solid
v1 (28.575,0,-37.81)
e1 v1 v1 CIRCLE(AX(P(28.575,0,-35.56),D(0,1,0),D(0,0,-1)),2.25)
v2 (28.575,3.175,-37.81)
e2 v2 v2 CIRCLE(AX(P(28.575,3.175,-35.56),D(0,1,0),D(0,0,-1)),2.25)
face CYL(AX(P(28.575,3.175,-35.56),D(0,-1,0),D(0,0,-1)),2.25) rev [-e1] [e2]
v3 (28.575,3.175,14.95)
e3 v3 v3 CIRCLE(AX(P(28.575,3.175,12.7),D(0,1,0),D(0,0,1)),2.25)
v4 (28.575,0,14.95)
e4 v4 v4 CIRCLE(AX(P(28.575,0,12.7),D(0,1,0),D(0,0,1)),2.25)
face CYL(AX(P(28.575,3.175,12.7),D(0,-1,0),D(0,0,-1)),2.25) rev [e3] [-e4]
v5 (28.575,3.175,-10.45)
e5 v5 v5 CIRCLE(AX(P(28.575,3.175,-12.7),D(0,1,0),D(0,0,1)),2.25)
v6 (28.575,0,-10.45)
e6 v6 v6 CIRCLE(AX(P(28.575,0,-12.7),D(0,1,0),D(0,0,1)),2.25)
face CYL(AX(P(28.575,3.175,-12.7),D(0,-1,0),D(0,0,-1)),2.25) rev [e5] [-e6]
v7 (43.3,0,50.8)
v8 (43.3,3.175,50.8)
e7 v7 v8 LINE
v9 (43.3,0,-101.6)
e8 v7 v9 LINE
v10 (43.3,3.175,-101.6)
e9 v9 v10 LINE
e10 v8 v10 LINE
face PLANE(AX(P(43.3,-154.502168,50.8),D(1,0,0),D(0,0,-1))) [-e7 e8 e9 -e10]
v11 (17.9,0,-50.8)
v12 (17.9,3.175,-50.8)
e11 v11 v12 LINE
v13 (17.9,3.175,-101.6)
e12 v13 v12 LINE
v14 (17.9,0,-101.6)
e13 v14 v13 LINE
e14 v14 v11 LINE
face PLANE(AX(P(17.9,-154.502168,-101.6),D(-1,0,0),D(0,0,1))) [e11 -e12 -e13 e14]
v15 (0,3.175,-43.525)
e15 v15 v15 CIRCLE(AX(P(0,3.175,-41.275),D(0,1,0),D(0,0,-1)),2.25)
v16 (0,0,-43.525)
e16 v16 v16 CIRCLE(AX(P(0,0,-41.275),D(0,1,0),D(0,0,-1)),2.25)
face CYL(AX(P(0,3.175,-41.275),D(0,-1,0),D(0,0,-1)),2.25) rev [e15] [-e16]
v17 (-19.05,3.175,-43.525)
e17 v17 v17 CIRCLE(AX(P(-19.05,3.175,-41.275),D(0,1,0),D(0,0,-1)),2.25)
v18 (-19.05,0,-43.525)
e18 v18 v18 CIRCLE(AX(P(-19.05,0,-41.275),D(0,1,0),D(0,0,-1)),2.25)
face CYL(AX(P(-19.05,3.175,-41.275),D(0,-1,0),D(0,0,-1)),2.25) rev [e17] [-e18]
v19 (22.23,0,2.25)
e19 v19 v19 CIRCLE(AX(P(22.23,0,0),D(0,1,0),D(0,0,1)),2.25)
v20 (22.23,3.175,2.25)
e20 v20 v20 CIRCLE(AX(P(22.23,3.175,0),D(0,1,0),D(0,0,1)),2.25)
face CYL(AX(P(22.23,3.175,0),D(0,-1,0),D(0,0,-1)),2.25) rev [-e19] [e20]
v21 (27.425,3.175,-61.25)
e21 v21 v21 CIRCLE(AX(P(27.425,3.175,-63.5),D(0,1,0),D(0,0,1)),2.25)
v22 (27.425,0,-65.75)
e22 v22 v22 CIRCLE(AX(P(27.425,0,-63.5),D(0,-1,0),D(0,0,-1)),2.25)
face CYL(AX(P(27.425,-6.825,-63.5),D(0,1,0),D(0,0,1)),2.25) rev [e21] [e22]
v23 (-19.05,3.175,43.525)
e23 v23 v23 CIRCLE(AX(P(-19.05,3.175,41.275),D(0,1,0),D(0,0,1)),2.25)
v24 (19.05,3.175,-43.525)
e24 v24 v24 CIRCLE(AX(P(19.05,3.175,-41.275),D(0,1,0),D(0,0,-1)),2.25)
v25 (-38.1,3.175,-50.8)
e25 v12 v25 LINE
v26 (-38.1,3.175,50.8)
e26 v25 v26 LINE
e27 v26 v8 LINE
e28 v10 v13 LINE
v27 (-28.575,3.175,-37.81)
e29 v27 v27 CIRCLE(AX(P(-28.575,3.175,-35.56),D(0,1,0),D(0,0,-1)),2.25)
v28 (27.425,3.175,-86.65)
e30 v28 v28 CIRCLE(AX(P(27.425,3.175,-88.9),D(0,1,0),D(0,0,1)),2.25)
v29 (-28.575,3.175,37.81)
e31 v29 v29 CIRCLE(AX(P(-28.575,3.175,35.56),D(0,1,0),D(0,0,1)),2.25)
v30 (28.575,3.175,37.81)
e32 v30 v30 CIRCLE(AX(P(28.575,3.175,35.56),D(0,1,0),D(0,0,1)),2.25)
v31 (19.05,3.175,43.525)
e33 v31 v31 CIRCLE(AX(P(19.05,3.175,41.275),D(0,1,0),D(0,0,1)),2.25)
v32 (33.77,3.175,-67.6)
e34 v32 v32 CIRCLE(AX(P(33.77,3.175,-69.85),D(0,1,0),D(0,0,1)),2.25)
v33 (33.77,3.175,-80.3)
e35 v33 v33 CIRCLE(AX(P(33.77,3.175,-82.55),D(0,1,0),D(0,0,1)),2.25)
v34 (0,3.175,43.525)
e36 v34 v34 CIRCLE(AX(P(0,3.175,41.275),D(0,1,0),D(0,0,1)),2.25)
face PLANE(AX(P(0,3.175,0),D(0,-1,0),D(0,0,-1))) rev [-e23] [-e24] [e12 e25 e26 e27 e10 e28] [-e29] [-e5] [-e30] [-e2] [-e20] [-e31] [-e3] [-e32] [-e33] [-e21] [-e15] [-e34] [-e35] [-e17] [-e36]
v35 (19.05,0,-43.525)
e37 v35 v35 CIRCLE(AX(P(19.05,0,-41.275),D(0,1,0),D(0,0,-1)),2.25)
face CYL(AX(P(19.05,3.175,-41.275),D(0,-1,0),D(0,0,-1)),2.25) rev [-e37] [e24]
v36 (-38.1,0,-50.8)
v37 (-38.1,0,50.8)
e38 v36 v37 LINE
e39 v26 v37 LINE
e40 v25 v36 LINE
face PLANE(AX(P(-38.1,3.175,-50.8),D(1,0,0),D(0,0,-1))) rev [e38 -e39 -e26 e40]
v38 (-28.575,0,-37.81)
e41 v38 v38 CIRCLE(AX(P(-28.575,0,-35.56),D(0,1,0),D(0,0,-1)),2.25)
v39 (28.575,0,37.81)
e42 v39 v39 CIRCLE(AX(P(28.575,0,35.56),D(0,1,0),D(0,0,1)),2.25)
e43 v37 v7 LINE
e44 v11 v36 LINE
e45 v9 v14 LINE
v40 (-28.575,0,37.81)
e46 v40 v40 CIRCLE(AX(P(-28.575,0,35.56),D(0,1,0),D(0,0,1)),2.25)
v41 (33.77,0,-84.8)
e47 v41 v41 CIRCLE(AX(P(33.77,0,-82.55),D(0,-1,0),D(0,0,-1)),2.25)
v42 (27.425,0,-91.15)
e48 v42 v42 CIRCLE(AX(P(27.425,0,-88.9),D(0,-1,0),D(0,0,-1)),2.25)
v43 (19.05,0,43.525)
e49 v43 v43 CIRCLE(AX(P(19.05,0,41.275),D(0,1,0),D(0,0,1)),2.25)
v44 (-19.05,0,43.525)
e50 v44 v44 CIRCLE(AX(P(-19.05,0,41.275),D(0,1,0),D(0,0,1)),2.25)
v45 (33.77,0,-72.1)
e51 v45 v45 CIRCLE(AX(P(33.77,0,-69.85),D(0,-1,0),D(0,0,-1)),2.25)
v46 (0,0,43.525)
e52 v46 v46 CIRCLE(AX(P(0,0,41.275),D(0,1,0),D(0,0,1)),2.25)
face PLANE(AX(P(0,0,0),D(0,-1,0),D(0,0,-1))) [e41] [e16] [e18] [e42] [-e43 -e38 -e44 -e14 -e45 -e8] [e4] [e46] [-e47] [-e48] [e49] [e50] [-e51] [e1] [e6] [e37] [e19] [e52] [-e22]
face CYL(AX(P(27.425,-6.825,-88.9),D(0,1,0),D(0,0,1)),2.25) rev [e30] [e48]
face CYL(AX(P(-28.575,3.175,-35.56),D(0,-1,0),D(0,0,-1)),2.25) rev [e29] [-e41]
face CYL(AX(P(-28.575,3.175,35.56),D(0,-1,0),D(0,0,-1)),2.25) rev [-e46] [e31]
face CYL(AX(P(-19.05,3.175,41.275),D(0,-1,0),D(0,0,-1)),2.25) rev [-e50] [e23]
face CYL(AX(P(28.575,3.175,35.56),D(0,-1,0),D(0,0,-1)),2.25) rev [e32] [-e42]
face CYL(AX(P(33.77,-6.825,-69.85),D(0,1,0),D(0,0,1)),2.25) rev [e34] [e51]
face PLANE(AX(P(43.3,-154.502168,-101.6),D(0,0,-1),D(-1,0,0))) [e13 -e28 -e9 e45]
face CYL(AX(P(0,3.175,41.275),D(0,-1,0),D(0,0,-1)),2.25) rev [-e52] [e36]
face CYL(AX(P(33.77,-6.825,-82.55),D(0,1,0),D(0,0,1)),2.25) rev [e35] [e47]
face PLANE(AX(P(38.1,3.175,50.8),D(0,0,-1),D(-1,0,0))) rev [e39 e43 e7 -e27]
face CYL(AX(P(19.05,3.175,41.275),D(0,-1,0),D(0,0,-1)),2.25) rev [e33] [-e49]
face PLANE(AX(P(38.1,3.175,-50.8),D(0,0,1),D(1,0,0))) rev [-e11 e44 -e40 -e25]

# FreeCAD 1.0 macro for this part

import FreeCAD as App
import Part
import Sketcher

V = App.Vector
Q = App.Units.Quantity

doc = App.newDocument("Part")
body = doc.addObject("PartDesign::Body", "Body")

sketch1 = doc.addObject("Sketcher::SketchObject", "Sketch")
body.addObject(sketch1)
sketch1.AttachmentSupport = (doc.XZ_Plane, [""])
sketch1.MapMode = "FlatFace"
sketch1.addGeometry([
    Part.LineSegment(V(-38.1, -50.8, 0), V(-38.1, 50.8, 0)),
    Part.LineSegment(V(-38.1, 50.8, 0), V(38.1, 50.8, 0)),
    Part.LineSegment(V(38.1, 50.8, 0), V(38.1, -50.8, 0)),
    Part.LineSegment(V(38.1, -50.8, 0), V(-38.1, -50.8, 0)),
    Part.Circle(V(-28.6, 35.6, 0), V(0, 0, 1), 2.2),
    Part.Circle(V(-19.1, 41.3, 0), V(0, 0, 1), 2.2),
    Part.Circle(V(0, 41.3, 0), V(0, 0, 1), 2.2),
    Part.Circle(V(19.1, 41.3, 0), V(0, 0, 1), 2.2),
    Part.Circle(V(28.6, 35.6, 0), V(0, 0, 1), 2.2),
    Part.Circle(V(28.6, 12.7, 0), V(0, 0, 1), 2.2),
    Part.Circle(V(-28.6, -35.6, 0), V(0, 0, 1), 2.2),
    Part.Circle(V(-19.1, -41.3, 0), V(0, 0, 1), 2.2),
    Part.Circle(V(0, -41.3, 0), V(0, 0, 1), 2.2),
    Part.Circle(V(22.2, 0, 0), V(0, 0, 1), 2.2),
    Part.Circle(V(28.6, -12.7, 0), V(0, 0, 1), 2.2),
    Part.Circle(V(19.1, -41.3, 0), V(0, 0, 1), 2.2),
    Part.Circle(V(28.6, -35.6, 0), V(0, 0, 1), 2.2),
], False)
sketch1.addConstraint([
    Sketcher.Constraint("Coincident", 0, 2, 1, 1),
    Sketcher.Constraint("Coincident", 1, 2, 2, 1),
    Sketcher.Constraint("Coincident", 2, 2, 3, 1),
    Sketcher.Constraint("Coincident", 3, 2, 0, 1),
    Sketcher.Constraint("Vertical", 0),
    Sketcher.Constraint("Horizontal", 1),
    Sketcher.Constraint("Vertical", 2),
    Sketcher.Constraint("Horizontal", 3),
    Sketcher.Constraint("Equal", 4, 5),
    Sketcher.Constraint("Equal", 5, 6),
    Sketcher.Constraint("Equal", 6, 7),
    Sketcher.Constraint("Equal", 7, 8),
    Sketcher.Constraint("Equal", 8, 9),
    Sketcher.Constraint("Equal", 9, 10),
    Sketcher.Constraint("Equal", 10, 11),
    Sketcher.Constraint("Equal", 11, 12),
    Sketcher.Constraint("Equal", 12, 13),
    Sketcher.Constraint("Equal", 13, 14),
    Sketcher.Constraint("Equal", 14, 15),
    Sketcher.Constraint("Equal", 15, 16),
    Sketcher.Constraint("Symmetric", 8, 3, 10, 3, -1, 1),
    Sketcher.Constraint("Symmetric", 7, 3, 11, 3, -1, 1),
    Sketcher.Constraint("Symmetric", 6, 3, 12, 3, -1, 1),
    Sketcher.Constraint("Symmetric", 5, 3, 15, 3, -1, 1),
    Sketcher.Constraint("Symmetric", 4, 3, 16, 3, -1, 1),
    Sketcher.Constraint("Symmetric", 0, 2, 2, 2, -1, 1),
    Sketcher.Constraint("Symmetric", 5, 3, 7, 3, -2),
    Sketcher.Constraint("Symmetric", 4, 3, 8, 3, -2),
    Sketcher.Constraint("Symmetric", 9, 3, 14, 3, -1),
    Sketcher.Constraint("PointOnObject", 6, 3, -2),
    Sketcher.Constraint("PointOnObject", 13, 3, -1),
    Sketcher.Constraint("Horizontal", 5, 3, 6, 3),
    Sketcher.Constraint("Vertical", 8, 3, 9, 3),
    Sketcher.Constraint("DistanceX", 1, 1, 1, 2, Q("3 in")),
    Sketcher.Constraint("DistanceY", 0, 1, 0, 2, Q("4 in")),
    Sketcher.Constraint("DistanceY", 14, 3, 9, 3, Q("1 in")),
    Sketcher.Constraint("DistanceY", -1, 1, 4, 3, Q("1.4 in")),
    Sketcher.Constraint("DistanceX", 5, 3, 7, 3, Q("1.5 in")),
    Sketcher.Constraint("Diameter", 4, Q("4.5 mm")),
    Sketcher.Constraint("DistanceX", 4, 3, 8, 3, Q("2.25 in")),
    Sketcher.Constraint("DistanceY", 11, 3, 5, 3, Q("3.25 in")),
    Sketcher.Constraint("DistanceX", -1, 1, 13, 3, Q("22.23 mm")),
])
pad1 = doc.addObject("PartDesign::Pad", "Pad")
body.addObject(pad1)
pad1.Profile = sketch1
pad1.Length = Q("0.125 in")
pad1.Reversed = True

sketch2 = doc.addObject("Sketcher::SketchObject", "Sketch001")
body.addObject(sketch2)
sketch2.AttachmentSupport = (doc.XZ_Plane, [""])
sketch2.MapMode = "FlatFace"
sketch2.AttachmentOffset = App.Placement(V(0, 0, -0.125 * 25.4), App.Rotation())
sketch2.addGeometry([
    Part.LineSegment(V(38, 51, 0), V(43, 51, 0)),
    Part.LineSegment(V(43, 51, 0), V(43, -102, 0)),
    Part.LineSegment(V(43, -102, 0), V(18, -102, 0)),
    Part.LineSegment(V(18, -102, 0), V(18, -51, 0)),
    Part.LineSegment(V(18, -51, 0), V(38, -51, 0)),
    Part.LineSegment(V(38, -51, 0), V(38, 51, 0)),
], False)
sketch2.addConstraint([
    Sketcher.Constraint("Coincident", 0, 2, 1, 1),
    Sketcher.Constraint("Coincident", 1, 2, 2, 1),
    Sketcher.Constraint("Coincident", 2, 2, 3, 1),
    Sketcher.Constraint("Coincident", 3, 2, 4, 1),
    Sketcher.Constraint("Coincident", 4, 2, 5, 1),
    Sketcher.Constraint("Coincident", 5, 2, 0, 1),
    Sketcher.Constraint("Horizontal", 0),
    Sketcher.Constraint("Vertical", 1),
    Sketcher.Constraint("Horizontal", 2),
    Sketcher.Constraint("Vertical", 3),
    Sketcher.Constraint("Horizontal", 4),
    Sketcher.Constraint("Vertical", 5),
    Sketcher.Constraint("DistanceX", 2, 2, 2, 1, Q("1 in")),
    Sketcher.Constraint("DistanceY", 1, 2, 1, 1, Q("6 in")),
    Sketcher.Constraint("DistanceY", 3, 1, 3, 2, Q("2 in")),
    Sketcher.Constraint("DistanceY", -1, 1, 0, 2, Q("2 in")),
    Sketcher.Constraint("DistanceX", -1, 1, 4, 2, Q("1.5 in")),
    Sketcher.Constraint("DistanceX", 0, 1, 0, 2, Q("5.2 mm")),
])
pad2 = doc.addObject("PartDesign::Pad", "Pad001")
body.addObject(pad2)
pad2.Profile = sketch2
pad2.Length = Q("0.125 in")

sketch3 = doc.addObject("Sketcher::SketchObject", "Sketch002")
body.addObject(sketch3)
sketch3.AttachmentSupport = (doc.XZ_Plane, [""])
sketch3.MapMode = "FlatFace"
sketch3.AttachmentOffset = App.Placement(V(0, 0, -0.125 * 25.4), App.Rotation())
sketch3.addGeometry([
    Part.Circle(V(33.8, -82.5, 0), V(0, 0, 1), 2.2),
    Part.Circle(V(33.8, -69.8, 0), V(0, 0, 1), 2.2),
    Part.Circle(V(27.4, -88.9, 0), V(0, 0, 1), 2.2),
    Part.Circle(V(27.4, -63.5, 0), V(0, 0, 1), 2.2),
], False)
sketch3.addConstraint([
    Sketcher.Constraint("Equal", 0, 1),
    Sketcher.Constraint("Equal", 1, 2),
    Sketcher.Constraint("Equal", 2, 3),
    Sketcher.Constraint("Vertical", 0, 3, 1, 3),
    Sketcher.Constraint("Vertical", 2, 3, 3, 3),
    Sketcher.Constraint("DistanceY", 2, 3, 3, 3, Q("1 in")),
    Sketcher.Constraint("DistanceY", 2, 3, -1, 1, Q("3.5 in")),
    Sketcher.Constraint("DistanceY", 0, 3, 1, 3, Q("0.5 in")),
    Sketcher.Constraint("Diameter", 0, Q("4.5 mm")),
    Sketcher.Constraint("DistanceY", 0, 3, -1, 1, Q("3.25 in")),
    Sketcher.Constraint("DistanceX", -1, 1, 0, 3, Q("33.77 mm")),
    Sketcher.Constraint("DistanceX", -1, 1, 2, 3, Q("27.425 mm")),
])
pocket1 = doc.addObject("PartDesign::Pocket", "Pocket")
body.addObject(pocket1)
pocket1.Profile = sketch3
pocket1.Length = 10
pocket1.Reversed = True

doc.recompute()
